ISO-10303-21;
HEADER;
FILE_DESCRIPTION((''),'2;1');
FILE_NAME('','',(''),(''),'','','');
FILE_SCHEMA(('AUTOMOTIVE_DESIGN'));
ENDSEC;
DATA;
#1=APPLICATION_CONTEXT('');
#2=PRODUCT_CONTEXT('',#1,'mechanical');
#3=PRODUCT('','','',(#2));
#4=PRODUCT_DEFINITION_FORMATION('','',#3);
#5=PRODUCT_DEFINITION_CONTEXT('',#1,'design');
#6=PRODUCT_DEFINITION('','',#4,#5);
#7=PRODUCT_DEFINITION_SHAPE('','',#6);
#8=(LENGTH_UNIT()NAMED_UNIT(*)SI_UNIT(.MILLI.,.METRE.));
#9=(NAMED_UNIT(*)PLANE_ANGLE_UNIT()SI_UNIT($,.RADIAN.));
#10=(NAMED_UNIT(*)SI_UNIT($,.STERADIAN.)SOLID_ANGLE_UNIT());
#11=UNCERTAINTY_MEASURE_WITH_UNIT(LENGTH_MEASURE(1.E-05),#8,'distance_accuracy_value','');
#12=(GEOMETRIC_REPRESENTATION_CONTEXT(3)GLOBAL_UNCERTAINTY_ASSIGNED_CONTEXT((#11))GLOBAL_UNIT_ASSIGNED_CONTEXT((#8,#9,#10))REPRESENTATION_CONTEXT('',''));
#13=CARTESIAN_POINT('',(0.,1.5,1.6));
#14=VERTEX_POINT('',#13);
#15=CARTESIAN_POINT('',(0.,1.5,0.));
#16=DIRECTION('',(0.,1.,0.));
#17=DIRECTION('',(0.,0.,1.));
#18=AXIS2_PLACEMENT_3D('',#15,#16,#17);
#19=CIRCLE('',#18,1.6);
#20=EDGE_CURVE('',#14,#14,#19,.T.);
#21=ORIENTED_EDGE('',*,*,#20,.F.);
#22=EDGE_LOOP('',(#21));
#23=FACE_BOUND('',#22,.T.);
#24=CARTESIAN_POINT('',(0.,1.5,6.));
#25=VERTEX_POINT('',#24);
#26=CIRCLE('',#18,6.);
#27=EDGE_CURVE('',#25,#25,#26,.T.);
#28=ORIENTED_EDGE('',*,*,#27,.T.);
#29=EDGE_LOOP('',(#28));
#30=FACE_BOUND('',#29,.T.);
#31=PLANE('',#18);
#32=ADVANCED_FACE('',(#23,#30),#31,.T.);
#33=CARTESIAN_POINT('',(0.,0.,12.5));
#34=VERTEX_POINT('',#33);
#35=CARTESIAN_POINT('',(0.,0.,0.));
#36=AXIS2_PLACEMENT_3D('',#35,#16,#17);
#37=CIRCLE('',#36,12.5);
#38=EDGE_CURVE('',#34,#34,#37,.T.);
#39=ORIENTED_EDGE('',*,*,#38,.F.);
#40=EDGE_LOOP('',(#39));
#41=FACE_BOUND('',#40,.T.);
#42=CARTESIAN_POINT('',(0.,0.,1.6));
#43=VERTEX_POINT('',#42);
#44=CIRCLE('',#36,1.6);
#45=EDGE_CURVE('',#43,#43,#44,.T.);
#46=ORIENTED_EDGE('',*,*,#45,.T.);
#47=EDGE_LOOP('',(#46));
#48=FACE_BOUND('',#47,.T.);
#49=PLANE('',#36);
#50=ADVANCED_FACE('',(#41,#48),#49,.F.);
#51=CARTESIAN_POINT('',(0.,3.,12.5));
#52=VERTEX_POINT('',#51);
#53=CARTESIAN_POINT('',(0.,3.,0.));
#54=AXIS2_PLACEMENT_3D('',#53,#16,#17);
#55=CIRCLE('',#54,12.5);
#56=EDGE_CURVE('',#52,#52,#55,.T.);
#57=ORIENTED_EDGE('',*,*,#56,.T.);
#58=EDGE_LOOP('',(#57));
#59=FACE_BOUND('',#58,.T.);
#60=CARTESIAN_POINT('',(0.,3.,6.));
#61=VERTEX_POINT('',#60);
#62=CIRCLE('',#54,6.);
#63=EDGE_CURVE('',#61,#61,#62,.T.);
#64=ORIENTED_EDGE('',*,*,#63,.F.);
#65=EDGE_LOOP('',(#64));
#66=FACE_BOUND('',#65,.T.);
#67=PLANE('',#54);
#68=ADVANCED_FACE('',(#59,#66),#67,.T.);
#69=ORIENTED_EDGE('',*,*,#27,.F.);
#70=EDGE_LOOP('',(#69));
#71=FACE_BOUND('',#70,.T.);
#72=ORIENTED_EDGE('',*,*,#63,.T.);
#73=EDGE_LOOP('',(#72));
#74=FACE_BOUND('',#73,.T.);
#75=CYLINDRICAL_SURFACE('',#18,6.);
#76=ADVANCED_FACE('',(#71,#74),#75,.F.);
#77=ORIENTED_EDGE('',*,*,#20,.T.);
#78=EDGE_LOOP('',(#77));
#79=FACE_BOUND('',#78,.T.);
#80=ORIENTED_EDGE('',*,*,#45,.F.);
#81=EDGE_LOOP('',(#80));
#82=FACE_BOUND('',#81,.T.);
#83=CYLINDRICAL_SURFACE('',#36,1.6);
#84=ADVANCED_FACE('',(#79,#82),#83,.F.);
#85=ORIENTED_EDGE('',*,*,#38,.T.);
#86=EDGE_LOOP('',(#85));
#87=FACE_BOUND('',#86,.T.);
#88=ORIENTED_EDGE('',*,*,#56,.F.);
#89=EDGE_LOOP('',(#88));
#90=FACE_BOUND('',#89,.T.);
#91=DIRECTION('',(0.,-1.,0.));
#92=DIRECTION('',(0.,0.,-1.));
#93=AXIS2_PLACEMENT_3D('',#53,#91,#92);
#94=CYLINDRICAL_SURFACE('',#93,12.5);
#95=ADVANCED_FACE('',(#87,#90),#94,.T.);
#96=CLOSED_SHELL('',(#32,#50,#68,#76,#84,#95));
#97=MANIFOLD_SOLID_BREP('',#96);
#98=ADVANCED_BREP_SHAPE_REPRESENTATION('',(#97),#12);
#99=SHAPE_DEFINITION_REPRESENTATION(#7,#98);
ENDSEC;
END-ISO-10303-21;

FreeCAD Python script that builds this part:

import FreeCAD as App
import Part
import Sketcher
from FreeCAD import Vector

doc = App.newDocument("Part")
params = doc.addObject("Spreadsheet::Sheet", "Params")
for row, (alias, value) in enumerate([
    ("sketch1_diameter", "25 mm"),
    ("pad1_length", "3 mm"),
    ("sketch2_diameter", "12 mm"),
    ("pocket1_length", "1.5 mm"),
    ("sketch3_diameter", "3.2 mm"),
], start=1):
    params.set(f"A{row}", alias)
    params.set(f"B{row}", "=" + value)
    params.setAlias(f"B{row}", alias)

body = doc.addObject("PartDesign::Body", "Body")

sketch1 = body.newObject("Sketcher::SketchObject", "Sketch")
sketch1.AttachmentSupport = (doc.getObject("XZ_Plane"), [""])
sketch1.MapMode = "FlatFace"
sketch1.addGeometry(Part.Circle(Vector(0, 0, 0), Vector(0, 0, 1), 12), False)
sketch1.addConstraint([
    Sketcher.Constraint("Coincident", 0, 3, -1, 1),
    Sketcher.Constraint("Diameter", 0, 25.0),
])
sketch1.setExpression("Constraints[1]", "Params.sketch1_diameter")
pad1 = body.newObject("PartDesign::Pad", "Pad")
pad1.Profile = sketch1
pad1.setExpression("Length", "Params.pad1_length")
pad1.Reversed = True

sketch2 = body.newObject("Sketcher::SketchObject", "Sketch001")
sketch2.AttachmentSupport = (doc.getObject("XZ_Plane"), [""])
sketch2.MapMode = "FlatFace"
sketch2.AttachmentOffset = App.Placement(Vector(0, 0, -3), App.Rotation())
sketch2.addGeometry(Part.Circle(Vector(0, 0, 0), Vector(0, 0, 1), 6), False)
sketch2.addConstraint([
    Sketcher.Constraint("Coincident", 0, 3, -1, 1),
    Sketcher.Constraint("Diameter", 0, 12.0),
])
sketch2.setExpression("Constraints[1]", "Params.sketch2_diameter")
pocket1 = body.newObject("PartDesign::Pocket", "Pocket")
pocket1.Profile = sketch2
pocket1.setExpression("Length", "Params.pocket1_length")
pocket1.Reversed = True

sketch3 = body.newObject("Sketcher::SketchObject", "Sketch002")
sketch3.AttachmentSupport = (doc.getObject("XZ_Plane"), [""])
sketch3.MapMode = "FlatFace"
sketch3.AttachmentOffset = App.Placement(Vector(0, 0, -1.5), App.Rotation())
sketch3.addGeometry(Part.Circle(Vector(0, 0, 0), Vector(0, 0, 1), 1.6), False)
sketch3.addConstraint([
    Sketcher.Constraint("Coincident", 0, 3, -1, 1),
    Sketcher.Constraint("Diameter", 0, 3.2),
])
sketch3.setExpression("Constraints[1]", "Params.sketch3_diameter")
pocket2 = body.newObject("PartDesign::Pocket", "Pocket001")
pocket2.Profile = sketch3
pocket2.Type = "ThroughAll"
pocket2.Reversed = True

doc.recompute()
